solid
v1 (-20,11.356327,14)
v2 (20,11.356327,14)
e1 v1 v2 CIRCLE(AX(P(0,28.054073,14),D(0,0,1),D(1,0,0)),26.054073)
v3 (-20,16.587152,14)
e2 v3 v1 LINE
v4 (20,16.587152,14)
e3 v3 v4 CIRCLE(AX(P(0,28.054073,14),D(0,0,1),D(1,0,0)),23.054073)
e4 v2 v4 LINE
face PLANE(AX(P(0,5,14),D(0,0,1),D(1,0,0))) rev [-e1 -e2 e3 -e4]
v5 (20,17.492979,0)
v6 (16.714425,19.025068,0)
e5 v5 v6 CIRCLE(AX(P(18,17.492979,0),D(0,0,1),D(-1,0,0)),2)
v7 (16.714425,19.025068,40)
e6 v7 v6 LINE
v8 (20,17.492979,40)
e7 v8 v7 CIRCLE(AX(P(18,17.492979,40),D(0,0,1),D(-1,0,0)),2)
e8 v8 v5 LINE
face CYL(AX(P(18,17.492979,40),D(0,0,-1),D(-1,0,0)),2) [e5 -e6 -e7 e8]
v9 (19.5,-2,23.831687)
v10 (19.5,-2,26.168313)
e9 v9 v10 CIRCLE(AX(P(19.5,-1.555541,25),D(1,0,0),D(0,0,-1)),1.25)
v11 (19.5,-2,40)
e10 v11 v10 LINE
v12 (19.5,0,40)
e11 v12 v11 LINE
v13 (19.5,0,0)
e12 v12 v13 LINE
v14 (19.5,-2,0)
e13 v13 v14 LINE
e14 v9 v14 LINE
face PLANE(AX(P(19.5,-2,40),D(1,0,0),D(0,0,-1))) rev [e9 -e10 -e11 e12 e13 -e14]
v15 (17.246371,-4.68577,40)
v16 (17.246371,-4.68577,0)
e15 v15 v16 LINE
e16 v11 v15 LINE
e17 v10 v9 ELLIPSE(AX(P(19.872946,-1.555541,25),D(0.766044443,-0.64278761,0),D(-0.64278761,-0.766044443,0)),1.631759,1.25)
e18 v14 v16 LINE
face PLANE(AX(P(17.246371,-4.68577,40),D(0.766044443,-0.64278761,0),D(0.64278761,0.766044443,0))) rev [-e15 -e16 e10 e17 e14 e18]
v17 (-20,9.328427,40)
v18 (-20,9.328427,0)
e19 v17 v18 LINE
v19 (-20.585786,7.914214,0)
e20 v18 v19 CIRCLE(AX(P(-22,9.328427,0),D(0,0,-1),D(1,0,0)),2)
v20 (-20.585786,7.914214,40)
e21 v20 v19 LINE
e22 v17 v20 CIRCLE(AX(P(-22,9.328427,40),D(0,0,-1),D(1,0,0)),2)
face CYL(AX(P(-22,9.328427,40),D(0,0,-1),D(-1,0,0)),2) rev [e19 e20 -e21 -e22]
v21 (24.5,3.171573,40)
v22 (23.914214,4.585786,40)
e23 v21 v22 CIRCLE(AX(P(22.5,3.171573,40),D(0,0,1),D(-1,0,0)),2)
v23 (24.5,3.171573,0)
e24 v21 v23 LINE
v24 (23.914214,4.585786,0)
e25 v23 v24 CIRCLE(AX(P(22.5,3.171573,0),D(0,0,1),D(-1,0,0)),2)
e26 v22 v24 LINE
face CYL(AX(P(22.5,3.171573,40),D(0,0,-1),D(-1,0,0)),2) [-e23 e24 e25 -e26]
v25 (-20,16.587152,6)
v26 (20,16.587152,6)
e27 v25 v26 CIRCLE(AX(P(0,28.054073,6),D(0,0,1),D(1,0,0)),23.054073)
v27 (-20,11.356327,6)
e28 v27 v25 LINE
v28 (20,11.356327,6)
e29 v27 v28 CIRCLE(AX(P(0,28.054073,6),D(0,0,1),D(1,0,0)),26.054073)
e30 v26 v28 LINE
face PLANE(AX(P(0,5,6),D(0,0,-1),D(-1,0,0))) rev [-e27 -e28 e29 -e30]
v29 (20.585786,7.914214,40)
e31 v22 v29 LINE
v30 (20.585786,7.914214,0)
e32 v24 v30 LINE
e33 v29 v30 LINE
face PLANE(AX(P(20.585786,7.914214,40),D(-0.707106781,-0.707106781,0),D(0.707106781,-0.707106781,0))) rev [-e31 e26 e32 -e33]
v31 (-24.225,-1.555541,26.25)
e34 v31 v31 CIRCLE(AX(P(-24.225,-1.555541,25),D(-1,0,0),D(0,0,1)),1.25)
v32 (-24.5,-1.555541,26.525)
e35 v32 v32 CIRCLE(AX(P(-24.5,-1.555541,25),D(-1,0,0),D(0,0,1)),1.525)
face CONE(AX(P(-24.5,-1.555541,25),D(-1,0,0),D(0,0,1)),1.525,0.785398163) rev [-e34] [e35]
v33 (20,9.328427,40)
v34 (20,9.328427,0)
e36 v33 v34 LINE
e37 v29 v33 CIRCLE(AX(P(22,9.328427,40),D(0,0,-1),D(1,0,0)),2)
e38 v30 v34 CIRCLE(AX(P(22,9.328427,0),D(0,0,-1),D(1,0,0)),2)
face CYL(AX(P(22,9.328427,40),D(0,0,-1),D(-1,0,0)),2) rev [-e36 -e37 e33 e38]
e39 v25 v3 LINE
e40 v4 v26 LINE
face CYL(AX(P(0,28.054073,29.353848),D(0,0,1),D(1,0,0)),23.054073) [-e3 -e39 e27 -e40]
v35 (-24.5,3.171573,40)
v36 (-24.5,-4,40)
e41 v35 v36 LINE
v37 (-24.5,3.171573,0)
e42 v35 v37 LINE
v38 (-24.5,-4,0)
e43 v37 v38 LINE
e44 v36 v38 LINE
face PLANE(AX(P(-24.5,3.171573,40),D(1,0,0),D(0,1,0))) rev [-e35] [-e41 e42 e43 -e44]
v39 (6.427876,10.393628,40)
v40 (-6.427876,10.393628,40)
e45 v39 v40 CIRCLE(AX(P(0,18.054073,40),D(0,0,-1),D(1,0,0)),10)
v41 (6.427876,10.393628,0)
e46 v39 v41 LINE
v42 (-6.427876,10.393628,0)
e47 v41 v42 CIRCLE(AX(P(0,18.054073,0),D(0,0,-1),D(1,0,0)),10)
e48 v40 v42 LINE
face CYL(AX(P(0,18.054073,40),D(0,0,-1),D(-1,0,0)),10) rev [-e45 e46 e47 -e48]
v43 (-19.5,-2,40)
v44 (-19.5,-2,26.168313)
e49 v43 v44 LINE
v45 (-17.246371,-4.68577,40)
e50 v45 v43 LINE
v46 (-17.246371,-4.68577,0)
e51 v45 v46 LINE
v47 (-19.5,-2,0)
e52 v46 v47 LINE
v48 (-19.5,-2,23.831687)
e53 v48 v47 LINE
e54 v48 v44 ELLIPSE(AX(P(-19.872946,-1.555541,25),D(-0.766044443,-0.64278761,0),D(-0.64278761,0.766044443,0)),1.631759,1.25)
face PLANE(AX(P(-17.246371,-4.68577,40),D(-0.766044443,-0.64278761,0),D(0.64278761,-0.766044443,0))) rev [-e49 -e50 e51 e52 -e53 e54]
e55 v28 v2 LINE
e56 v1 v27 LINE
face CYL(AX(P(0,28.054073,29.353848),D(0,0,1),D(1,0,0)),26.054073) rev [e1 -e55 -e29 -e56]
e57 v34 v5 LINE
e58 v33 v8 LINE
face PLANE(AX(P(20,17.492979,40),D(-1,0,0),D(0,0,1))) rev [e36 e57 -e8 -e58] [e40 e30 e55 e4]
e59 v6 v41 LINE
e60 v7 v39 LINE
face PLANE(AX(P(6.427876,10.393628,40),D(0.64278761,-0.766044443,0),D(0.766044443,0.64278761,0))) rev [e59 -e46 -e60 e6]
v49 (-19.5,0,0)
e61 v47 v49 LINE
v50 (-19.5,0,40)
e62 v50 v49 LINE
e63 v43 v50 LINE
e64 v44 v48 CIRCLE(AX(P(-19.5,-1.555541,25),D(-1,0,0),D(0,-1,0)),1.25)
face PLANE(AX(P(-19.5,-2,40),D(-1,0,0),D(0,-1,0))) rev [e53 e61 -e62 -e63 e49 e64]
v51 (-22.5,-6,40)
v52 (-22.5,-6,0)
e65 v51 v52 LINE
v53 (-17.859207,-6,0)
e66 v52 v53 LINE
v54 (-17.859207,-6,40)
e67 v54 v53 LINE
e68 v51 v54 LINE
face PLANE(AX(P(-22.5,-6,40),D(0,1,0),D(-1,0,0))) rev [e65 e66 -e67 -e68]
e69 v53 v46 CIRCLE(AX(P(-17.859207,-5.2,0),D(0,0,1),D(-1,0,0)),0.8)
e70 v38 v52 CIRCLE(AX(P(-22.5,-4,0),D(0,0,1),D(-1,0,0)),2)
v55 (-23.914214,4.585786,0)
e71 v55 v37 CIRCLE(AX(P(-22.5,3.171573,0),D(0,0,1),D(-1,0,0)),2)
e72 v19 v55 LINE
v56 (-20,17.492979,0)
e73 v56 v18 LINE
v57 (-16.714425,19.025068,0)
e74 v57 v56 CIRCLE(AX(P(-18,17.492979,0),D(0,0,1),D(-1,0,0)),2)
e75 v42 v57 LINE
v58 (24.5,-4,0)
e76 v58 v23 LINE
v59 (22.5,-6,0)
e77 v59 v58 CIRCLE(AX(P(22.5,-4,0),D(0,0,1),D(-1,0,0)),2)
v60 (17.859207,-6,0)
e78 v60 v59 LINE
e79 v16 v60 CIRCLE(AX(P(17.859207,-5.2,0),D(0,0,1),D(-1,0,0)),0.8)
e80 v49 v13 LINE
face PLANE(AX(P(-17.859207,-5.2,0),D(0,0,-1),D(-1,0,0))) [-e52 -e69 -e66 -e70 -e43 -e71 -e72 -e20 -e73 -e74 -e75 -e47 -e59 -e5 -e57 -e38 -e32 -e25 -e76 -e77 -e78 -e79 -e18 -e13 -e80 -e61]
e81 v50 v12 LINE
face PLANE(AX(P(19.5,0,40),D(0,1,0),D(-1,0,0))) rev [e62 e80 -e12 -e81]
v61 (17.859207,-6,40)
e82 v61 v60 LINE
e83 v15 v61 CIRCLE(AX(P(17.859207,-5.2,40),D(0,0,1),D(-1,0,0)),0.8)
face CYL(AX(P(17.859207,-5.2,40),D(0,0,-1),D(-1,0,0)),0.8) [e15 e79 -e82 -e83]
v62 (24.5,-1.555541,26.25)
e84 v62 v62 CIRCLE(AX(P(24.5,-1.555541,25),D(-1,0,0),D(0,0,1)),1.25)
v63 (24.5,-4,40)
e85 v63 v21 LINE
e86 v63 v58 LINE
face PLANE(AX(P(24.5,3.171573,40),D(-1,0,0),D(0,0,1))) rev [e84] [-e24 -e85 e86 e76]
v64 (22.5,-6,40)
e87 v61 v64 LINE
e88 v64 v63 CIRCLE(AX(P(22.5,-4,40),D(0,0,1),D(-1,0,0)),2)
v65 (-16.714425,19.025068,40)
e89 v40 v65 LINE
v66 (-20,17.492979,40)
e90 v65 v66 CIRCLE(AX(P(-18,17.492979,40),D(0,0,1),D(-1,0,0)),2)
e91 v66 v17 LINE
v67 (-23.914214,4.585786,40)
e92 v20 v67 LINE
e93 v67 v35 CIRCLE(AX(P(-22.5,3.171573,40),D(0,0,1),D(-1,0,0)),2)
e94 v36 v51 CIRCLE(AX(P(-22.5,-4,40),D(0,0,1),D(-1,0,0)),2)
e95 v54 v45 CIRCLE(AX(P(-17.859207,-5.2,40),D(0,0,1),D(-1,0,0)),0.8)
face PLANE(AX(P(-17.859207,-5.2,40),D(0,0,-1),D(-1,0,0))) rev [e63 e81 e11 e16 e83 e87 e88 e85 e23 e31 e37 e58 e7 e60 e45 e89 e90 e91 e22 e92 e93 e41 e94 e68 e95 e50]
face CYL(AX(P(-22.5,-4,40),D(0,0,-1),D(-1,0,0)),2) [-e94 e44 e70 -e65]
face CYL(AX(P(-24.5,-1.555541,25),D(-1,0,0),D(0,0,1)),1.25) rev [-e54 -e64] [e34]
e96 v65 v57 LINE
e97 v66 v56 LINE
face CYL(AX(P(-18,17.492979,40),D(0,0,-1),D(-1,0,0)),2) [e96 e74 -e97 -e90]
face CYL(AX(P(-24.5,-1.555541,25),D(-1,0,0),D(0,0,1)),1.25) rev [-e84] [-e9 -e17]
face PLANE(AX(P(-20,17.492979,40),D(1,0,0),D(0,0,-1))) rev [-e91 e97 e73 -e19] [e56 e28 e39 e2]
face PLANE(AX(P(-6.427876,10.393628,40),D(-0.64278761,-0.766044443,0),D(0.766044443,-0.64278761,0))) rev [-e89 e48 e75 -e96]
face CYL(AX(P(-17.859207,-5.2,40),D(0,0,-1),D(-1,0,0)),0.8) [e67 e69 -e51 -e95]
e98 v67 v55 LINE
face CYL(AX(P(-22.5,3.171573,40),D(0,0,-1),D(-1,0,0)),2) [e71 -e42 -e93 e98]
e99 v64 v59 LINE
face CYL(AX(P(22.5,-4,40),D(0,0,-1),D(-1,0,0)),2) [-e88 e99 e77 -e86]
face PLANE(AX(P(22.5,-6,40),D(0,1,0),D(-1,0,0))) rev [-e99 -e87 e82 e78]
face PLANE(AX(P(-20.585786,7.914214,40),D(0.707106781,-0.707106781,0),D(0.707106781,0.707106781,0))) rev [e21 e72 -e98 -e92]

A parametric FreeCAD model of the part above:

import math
import FreeCAD as App
import Part
import Sketcher
Q = App.Units.Quantity

doc = App.newDocument("Part")
body = doc.addObject("PartDesign::Body", "Body")

sketch1 = body.newObject("Sketcher::SketchObject", "Sketch")
sketch1.AttachmentSupport = (doc.getObject("XY_Plane"), [""])
sketch1.MapMode = "FlatFace"
sketch1.addGeometry([
    Part.LineSegment(App.Vector(16.7, 19, 0), App.Vector(6.4, 10.4, 0)),
    Part.ArcOfCircle(Part.Circle(App.Vector(0, 18.1, 0), App.Vector(0, 0, 1), 10), math.radians(-130), math.radians(-50)),
    Part.LineSegment(App.Vector(-6.4, 10.4, 0), App.Vector(-16.7, 19, 0)),
    Part.ArcOfCircle(Part.Circle(App.Vector(-18, 17.5, 0), App.Vector(0, 0, 1), 2), math.radians(50), math.radians(180)),
    Part.LineSegment(App.Vector(-20, 17.5, 0), App.Vector(-20, 9.3, 0)),
    Part.ArcOfCircle(Part.Circle(App.Vector(-22, 9.3, 0), App.Vector(0, 0, 1), 2), math.radians(-45), math.radians(0)),
    Part.LineSegment(App.Vector(-20.6, 7.9, 0), App.Vector(-23.9, 4.6, 0)),
    Part.ArcOfCircle(Part.Circle(App.Vector(-22.5, 3.2, 0), App.Vector(0, 0, 1), 2), math.radians(135), math.radians(180)),
    Part.LineSegment(App.Vector(-24.5, 3.2, 0), App.Vector(-24.5, -4, 0)),
    Part.ArcOfCircle(Part.Circle(App.Vector(-22.5, -4, 0), App.Vector(0, 0, 1), 2), math.radians(-180), math.radians(-90)),
    Part.LineSegment(App.Vector(-22.5, -6, 0), App.Vector(-17.9, -6, 0)),
    Part.ArcOfCircle(Part.Circle(App.Vector(-17.9, -5.2, 0), App.Vector(0, 0, 1), 0.8), math.radians(-90), math.radians(40)),
    Part.LineSegment(App.Vector(-17.2, -4.7, 0), App.Vector(-19.5, -2, 0)),
    Part.LineSegment(App.Vector(-19.5, -2, 0), App.Vector(-19.5, 0, 0)),
    Part.LineSegment(App.Vector(-19.5, 0, 0), App.Vector(19.5, 0, 0)),
    Part.LineSegment(App.Vector(19.5, 0, 0), App.Vector(19.5, -2, 0)),
    Part.LineSegment(App.Vector(19.5, -2, 0), App.Vector(17.2, -4.7, 0)),
    Part.ArcOfCircle(Part.Circle(App.Vector(17.9, -5.2, 0), App.Vector(0, 0, 1), 0.8), math.radians(140), math.radians(270)),
    Part.LineSegment(App.Vector(17.9, -6, 0), App.Vector(22.5, -6, 0)),
    Part.ArcOfCircle(Part.Circle(App.Vector(22.5, -4, 0), App.Vector(0, 0, 1), 2), math.radians(-90), math.radians(0)),
    Part.LineSegment(App.Vector(24.5, -4, 0), App.Vector(24.5, 3.2, 0)),
    Part.ArcOfCircle(Part.Circle(App.Vector(22.5, 3.2, 0), App.Vector(0, 0, 1), 2), math.radians(0), math.radians(45)),
    Part.LineSegment(App.Vector(23.9, 4.6, 0), App.Vector(20.6, 7.9, 0)),
    Part.ArcOfCircle(Part.Circle(App.Vector(22, 9.3, 0), App.Vector(0, 0, 1), 2), math.radians(180), math.radians(225)),
    Part.LineSegment(App.Vector(20, 9.3, 0), App.Vector(20, 17.5, 0)),
    Part.ArcOfCircle(Part.Circle(App.Vector(18, 17.5, 0), App.Vector(0, 0, 1), 2), math.radians(0), math.radians(130)),
], False)
sketch1.addConstraint([
    Sketcher.Constraint("Tangent", 0, 2, 1, 2),
    Sketcher.Constraint("Tangent", 1, 1, 2, 1),
    Sketcher.Constraint("Tangent", 2, 2, 3, 1),
    Sketcher.Constraint("Tangent", 3, 2, 4, 1),
    Sketcher.Constraint("Tangent", 4, 2, 5, 2),
    Sketcher.Constraint("Tangent", 5, 1, 6, 1),
    Sketcher.Constraint("Tangent", 6, 2, 7, 1),
    Sketcher.Constraint("Tangent", 7, 2, 8, 1),
    Sketcher.Constraint("Tangent", 8, 2, 9, 1),
    Sketcher.Constraint("Tangent", 9, 2, 10, 1),
    Sketcher.Constraint("Tangent", 10, 2, 11, 1),
    Sketcher.Constraint("Tangent", 11, 2, 12, 1),
    Sketcher.Constraint("Coincident", 12, 2, 13, 1),
    Sketcher.Constraint("Coincident", 13, 2, 14, 1),
    Sketcher.Constraint("Coincident", 14, 2, 15, 1),
    Sketcher.Constraint("Coincident", 15, 2, 16, 1),
    Sketcher.Constraint("Tangent", 16, 2, 17, 1),
    Sketcher.Constraint("Tangent", 17, 2, 18, 1),
    Sketcher.Constraint("Tangent", 18, 2, 19, 1),
    Sketcher.Constraint("Tangent", 19, 2, 20, 1),
    Sketcher.Constraint("Tangent", 20, 2, 21, 1),
    Sketcher.Constraint("Tangent", 21, 2, 22, 1),
    Sketcher.Constraint("Tangent", 22, 2, 23, 2),
    Sketcher.Constraint("Tangent", 23, 1, 24, 1),
    Sketcher.Constraint("Tangent", 24, 2, 25, 1),
    Sketcher.Constraint("Tangent", 25, 2, 0, 1),
    Sketcher.Constraint("Vertical", 4),
    Sketcher.Constraint("Vertical", 8),
    Sketcher.Constraint("Horizontal", 10),
    Sketcher.Constraint("Vertical", 13),
    Sketcher.Constraint("Horizontal", 14),
    Sketcher.Constraint("Vertical", 15),
    Sketcher.Constraint("Horizontal", 18),
    Sketcher.Constraint("Vertical", 20),
    Sketcher.Constraint("Vertical", 24),
    Sketcher.Constraint("Equal", 3, 5),
    Sketcher.Constraint("Equal", 5, 7),
    Sketcher.Constraint("Equal", 7, 9),
    Sketcher.Constraint("Equal", 11, 17),
    Sketcher.Constraint("Equal", 9, 19),
    Sketcher.Constraint("Equal", 19, 21),
    Sketcher.Constraint("Equal", 21, 23),
    Sketcher.Constraint("Equal", 23, 25),
    Sketcher.Constraint("Symmetric", 13, 2, 14, 2, -1, 1),
    Sketcher.Constraint("Symmetric", 11, 3, 17, 3, -2),
    Sketcher.Constraint("Symmetric", 7, 3, 21, 3, -2),
    Sketcher.Constraint("Symmetric", 5, 3, 23, 3, -2),
    Sketcher.Constraint("Symmetric", 0, 2, 1, 1, -2),
    Sketcher.Constraint("Perpendicular", 0, 12),
    Sketcher.Constraint("Perpendicular", 2, 16),
    Sketcher.Constraint("Perpendicular", 6, 22),
    Sketcher.Constraint("Radius", 1, 10.0),
    Sketcher.Constraint("Radius", 3, 2.0),
    Sketcher.Constraint("Radius", 11, 0.8),
    Sketcher.Constraint("DistanceX", 14, 1, 14, 2, 39.0),
    Sketcher.Constraint("DistanceY", 13, 1, 13, 2, 2.0),
    Sketcher.Constraint("Angle", 0, Q("-140 deg")),
    Sketcher.Constraint("DistanceX", 3, 3, -1, 1, 18.0),
    Sketcher.Constraint("DistanceY", 9, 3, -1, 1, 4.0),
    Sketcher.Constraint("DistanceX", 9, 3, 19, 3, 45.0),
    Sketcher.Constraint("DistanceY", 4, 2, 4, 1, 8.164552),
    Sketcher.Constraint("DistanceY", 8, 2, 8, 1, 7.171573),
])
pad1 = body.newObject("PartDesign::Pad", "Pad")
pad1.Profile = sketch1
pad1.Length = 40

sketch2 = body.newObject("Sketcher::SketchObject", "Sketch001")
sketch2.AttachmentSupport = (doc.getObject("YZ_Plane"), [""])
sketch2.MapMode = "FlatFace"
sketch2.addGeometry([
    Part.LineSegment(App.Vector(5, 14, 0), App.Vector(2, 14, 0)),
    Part.LineSegment(App.Vector(2, 14, 0), App.Vector(2, 6, 0)),
    Part.LineSegment(App.Vector(2, 6, 0), App.Vector(5, 6, 0)),
    Part.LineSegment(App.Vector(5, 6, 0), App.Vector(5, 14, 0)),
    Part.LineSegment(App.Vector(5, 54, 0), App.Vector(2, 54, 0)),
    Part.LineSegment(App.Vector(2, 54, 0), App.Vector(2, 46, 0)),
    Part.LineSegment(App.Vector(2, 46, 0), App.Vector(5, 46, 0)),
    Part.LineSegment(App.Vector(5, 46, 0), App.Vector(5, 54, 0)),
    Part.LineSegment(App.Vector(5, 94, 0), App.Vector(2, 94, 0)),
    Part.LineSegment(App.Vector(2, 94, 0), App.Vector(2, 86, 0)),
    Part.LineSegment(App.Vector(2, 86, 0), App.Vector(5, 86, 0)),
    Part.LineSegment(App.Vector(5, 86, 0), App.Vector(5, 94, 0)),
], False)
sketch2.addGeometry(Part.LineSegment(App.Vector(28.1, 94, 0), App.Vector(28.1, 6, 0)), True)
sketch2.addConstraint([
    Sketcher.Constraint("Coincident", 0, 2, 1, 1),
    Sketcher.Constraint("Coincident", 1, 2, 2, 1),
    Sketcher.Constraint("Coincident", 2, 2, 3, 1),
    Sketcher.Constraint("Coincident", 3, 2, 0, 1),
    Sketcher.Constraint("Coincident", 4, 2, 5, 1),
    Sketcher.Constraint("Coincident", 5, 2, 6, 1),
    Sketcher.Constraint("Coincident", 6, 2, 7, 1),
    Sketcher.Constraint("Coincident", 7, 2, 4, 1),
    Sketcher.Constraint("Coincident", 8, 2, 9, 1),
    Sketcher.Constraint("Coincident", 9, 2, 10, 1),
    Sketcher.Constraint("Coincident", 10, 2, 11, 1),
    Sketcher.Constraint("Coincident", 11, 2, 8, 1),
    Sketcher.Constraint("Horizontal", 0),
    Sketcher.Constraint("Vertical", 1),
    Sketcher.Constraint("Horizontal", 2),
    Sketcher.Constraint("Vertical", 3),
    Sketcher.Constraint("Horizontal", 4),
    Sketcher.Constraint("Vertical", 5),
    Sketcher.Constraint("Horizontal", 6),
    Sketcher.Constraint("Vertical", 7),
    Sketcher.Constraint("Horizontal", 8),
    Sketcher.Constraint("Vertical", 9),
    Sketcher.Constraint("Horizontal", 10),
    Sketcher.Constraint("Vertical", 11),
    Sketcher.Constraint("Vertical", 12),
    Sketcher.Constraint("Horizontal", 11, 2, 12, 1),
    Sketcher.Constraint("Horizontal", 2, 2, 12, 2),
    Sketcher.Constraint("Vertical", 1, 2, 4, 2),
    Sketcher.Constraint("Vertical", 3, 2, 6, 2),
    Sketcher.Constraint("Vertical", 5, 2, 8, 2),
    Sketcher.Constraint("Vertical", 7, 2, 10, 2),
    Sketcher.Constraint("Equal", 3, 5),
    Sketcher.Constraint("Equal", 7, 9),
    Sketcher.Constraint("DistanceX", 0, 2, 0, 1, 3.0),
    Sketcher.Constraint("DistanceY", 1, 2, 1, 1, 8.0),
    Sketcher.Constraint("DistanceY", 12, 2, 12, 1, 88.0),
    Sketcher.Constraint("DistanceX", -1, 1, 0, 2, 2.0),
    Sketcher.Constraint("DistanceY", -1, 1, 0, 2, 14.0),
    Sketcher.Constraint("DistanceY", -1, 1, 4, 2, 54.0),
    Sketcher.Constraint("DistanceX", -1, 1, 12, 1, 28.054073),
])
groove = body.newObject("PartDesign::Groove", "Groove")
groove.Profile = sketch2
groove.ReferenceAxis = (sketch2, ["Axis0"])
groove.Angle = 360

sketch3 = body.newObject("Sketcher::SketchObject", "Sketch002")
sketch3.AttachmentSupport = (doc.getObject("YZ_Plane"), [""])
sketch3.MapMode = "FlatFace"
sketch3.AttachmentOffset = App.Placement(App.Vector(0, 0, -24.5), App.Rotation())
sketch3.addGeometry([
    Part.Circle(App.Vector(-1.6, 25, 0), App.Vector(0, 0, 1), 1.2),
    Part.Circle(App.Vector(-1.6, 75, 0), App.Vector(0, 0, 1), 1.2),
], False)
sketch3.addConstraint([
    Sketcher.Constraint("Equal", 0, 1),
    Sketcher.Constraint("Vertical", 0, 3, 1, 3),
    Sketcher.Constraint("Diameter", 0, 2.5),
    Sketcher.Constraint("DistanceY", -1, 1, 0, 3, 25.0),
    Sketcher.Constraint("DistanceY", -1, 1, 1, 3, 75.0),
    Sketcher.Constraint("DistanceX", 0, 3, -1, 1, 1.555541),
])
doc.recompute()
hole = body.newObject("PartDesign::Hole", "Hole")
hole.Profile = sketch3
hole.ThreadType = "None"
hole.Diameter = 2.5
hole.DepthType = "ThroughAll"
hole.HoleCutType = "Countersink"
hole.HoleCutDiameter = 3.05
hole.HoleCutCountersinkAngle = 90
hole.Reversed = True

doc.recompute()
